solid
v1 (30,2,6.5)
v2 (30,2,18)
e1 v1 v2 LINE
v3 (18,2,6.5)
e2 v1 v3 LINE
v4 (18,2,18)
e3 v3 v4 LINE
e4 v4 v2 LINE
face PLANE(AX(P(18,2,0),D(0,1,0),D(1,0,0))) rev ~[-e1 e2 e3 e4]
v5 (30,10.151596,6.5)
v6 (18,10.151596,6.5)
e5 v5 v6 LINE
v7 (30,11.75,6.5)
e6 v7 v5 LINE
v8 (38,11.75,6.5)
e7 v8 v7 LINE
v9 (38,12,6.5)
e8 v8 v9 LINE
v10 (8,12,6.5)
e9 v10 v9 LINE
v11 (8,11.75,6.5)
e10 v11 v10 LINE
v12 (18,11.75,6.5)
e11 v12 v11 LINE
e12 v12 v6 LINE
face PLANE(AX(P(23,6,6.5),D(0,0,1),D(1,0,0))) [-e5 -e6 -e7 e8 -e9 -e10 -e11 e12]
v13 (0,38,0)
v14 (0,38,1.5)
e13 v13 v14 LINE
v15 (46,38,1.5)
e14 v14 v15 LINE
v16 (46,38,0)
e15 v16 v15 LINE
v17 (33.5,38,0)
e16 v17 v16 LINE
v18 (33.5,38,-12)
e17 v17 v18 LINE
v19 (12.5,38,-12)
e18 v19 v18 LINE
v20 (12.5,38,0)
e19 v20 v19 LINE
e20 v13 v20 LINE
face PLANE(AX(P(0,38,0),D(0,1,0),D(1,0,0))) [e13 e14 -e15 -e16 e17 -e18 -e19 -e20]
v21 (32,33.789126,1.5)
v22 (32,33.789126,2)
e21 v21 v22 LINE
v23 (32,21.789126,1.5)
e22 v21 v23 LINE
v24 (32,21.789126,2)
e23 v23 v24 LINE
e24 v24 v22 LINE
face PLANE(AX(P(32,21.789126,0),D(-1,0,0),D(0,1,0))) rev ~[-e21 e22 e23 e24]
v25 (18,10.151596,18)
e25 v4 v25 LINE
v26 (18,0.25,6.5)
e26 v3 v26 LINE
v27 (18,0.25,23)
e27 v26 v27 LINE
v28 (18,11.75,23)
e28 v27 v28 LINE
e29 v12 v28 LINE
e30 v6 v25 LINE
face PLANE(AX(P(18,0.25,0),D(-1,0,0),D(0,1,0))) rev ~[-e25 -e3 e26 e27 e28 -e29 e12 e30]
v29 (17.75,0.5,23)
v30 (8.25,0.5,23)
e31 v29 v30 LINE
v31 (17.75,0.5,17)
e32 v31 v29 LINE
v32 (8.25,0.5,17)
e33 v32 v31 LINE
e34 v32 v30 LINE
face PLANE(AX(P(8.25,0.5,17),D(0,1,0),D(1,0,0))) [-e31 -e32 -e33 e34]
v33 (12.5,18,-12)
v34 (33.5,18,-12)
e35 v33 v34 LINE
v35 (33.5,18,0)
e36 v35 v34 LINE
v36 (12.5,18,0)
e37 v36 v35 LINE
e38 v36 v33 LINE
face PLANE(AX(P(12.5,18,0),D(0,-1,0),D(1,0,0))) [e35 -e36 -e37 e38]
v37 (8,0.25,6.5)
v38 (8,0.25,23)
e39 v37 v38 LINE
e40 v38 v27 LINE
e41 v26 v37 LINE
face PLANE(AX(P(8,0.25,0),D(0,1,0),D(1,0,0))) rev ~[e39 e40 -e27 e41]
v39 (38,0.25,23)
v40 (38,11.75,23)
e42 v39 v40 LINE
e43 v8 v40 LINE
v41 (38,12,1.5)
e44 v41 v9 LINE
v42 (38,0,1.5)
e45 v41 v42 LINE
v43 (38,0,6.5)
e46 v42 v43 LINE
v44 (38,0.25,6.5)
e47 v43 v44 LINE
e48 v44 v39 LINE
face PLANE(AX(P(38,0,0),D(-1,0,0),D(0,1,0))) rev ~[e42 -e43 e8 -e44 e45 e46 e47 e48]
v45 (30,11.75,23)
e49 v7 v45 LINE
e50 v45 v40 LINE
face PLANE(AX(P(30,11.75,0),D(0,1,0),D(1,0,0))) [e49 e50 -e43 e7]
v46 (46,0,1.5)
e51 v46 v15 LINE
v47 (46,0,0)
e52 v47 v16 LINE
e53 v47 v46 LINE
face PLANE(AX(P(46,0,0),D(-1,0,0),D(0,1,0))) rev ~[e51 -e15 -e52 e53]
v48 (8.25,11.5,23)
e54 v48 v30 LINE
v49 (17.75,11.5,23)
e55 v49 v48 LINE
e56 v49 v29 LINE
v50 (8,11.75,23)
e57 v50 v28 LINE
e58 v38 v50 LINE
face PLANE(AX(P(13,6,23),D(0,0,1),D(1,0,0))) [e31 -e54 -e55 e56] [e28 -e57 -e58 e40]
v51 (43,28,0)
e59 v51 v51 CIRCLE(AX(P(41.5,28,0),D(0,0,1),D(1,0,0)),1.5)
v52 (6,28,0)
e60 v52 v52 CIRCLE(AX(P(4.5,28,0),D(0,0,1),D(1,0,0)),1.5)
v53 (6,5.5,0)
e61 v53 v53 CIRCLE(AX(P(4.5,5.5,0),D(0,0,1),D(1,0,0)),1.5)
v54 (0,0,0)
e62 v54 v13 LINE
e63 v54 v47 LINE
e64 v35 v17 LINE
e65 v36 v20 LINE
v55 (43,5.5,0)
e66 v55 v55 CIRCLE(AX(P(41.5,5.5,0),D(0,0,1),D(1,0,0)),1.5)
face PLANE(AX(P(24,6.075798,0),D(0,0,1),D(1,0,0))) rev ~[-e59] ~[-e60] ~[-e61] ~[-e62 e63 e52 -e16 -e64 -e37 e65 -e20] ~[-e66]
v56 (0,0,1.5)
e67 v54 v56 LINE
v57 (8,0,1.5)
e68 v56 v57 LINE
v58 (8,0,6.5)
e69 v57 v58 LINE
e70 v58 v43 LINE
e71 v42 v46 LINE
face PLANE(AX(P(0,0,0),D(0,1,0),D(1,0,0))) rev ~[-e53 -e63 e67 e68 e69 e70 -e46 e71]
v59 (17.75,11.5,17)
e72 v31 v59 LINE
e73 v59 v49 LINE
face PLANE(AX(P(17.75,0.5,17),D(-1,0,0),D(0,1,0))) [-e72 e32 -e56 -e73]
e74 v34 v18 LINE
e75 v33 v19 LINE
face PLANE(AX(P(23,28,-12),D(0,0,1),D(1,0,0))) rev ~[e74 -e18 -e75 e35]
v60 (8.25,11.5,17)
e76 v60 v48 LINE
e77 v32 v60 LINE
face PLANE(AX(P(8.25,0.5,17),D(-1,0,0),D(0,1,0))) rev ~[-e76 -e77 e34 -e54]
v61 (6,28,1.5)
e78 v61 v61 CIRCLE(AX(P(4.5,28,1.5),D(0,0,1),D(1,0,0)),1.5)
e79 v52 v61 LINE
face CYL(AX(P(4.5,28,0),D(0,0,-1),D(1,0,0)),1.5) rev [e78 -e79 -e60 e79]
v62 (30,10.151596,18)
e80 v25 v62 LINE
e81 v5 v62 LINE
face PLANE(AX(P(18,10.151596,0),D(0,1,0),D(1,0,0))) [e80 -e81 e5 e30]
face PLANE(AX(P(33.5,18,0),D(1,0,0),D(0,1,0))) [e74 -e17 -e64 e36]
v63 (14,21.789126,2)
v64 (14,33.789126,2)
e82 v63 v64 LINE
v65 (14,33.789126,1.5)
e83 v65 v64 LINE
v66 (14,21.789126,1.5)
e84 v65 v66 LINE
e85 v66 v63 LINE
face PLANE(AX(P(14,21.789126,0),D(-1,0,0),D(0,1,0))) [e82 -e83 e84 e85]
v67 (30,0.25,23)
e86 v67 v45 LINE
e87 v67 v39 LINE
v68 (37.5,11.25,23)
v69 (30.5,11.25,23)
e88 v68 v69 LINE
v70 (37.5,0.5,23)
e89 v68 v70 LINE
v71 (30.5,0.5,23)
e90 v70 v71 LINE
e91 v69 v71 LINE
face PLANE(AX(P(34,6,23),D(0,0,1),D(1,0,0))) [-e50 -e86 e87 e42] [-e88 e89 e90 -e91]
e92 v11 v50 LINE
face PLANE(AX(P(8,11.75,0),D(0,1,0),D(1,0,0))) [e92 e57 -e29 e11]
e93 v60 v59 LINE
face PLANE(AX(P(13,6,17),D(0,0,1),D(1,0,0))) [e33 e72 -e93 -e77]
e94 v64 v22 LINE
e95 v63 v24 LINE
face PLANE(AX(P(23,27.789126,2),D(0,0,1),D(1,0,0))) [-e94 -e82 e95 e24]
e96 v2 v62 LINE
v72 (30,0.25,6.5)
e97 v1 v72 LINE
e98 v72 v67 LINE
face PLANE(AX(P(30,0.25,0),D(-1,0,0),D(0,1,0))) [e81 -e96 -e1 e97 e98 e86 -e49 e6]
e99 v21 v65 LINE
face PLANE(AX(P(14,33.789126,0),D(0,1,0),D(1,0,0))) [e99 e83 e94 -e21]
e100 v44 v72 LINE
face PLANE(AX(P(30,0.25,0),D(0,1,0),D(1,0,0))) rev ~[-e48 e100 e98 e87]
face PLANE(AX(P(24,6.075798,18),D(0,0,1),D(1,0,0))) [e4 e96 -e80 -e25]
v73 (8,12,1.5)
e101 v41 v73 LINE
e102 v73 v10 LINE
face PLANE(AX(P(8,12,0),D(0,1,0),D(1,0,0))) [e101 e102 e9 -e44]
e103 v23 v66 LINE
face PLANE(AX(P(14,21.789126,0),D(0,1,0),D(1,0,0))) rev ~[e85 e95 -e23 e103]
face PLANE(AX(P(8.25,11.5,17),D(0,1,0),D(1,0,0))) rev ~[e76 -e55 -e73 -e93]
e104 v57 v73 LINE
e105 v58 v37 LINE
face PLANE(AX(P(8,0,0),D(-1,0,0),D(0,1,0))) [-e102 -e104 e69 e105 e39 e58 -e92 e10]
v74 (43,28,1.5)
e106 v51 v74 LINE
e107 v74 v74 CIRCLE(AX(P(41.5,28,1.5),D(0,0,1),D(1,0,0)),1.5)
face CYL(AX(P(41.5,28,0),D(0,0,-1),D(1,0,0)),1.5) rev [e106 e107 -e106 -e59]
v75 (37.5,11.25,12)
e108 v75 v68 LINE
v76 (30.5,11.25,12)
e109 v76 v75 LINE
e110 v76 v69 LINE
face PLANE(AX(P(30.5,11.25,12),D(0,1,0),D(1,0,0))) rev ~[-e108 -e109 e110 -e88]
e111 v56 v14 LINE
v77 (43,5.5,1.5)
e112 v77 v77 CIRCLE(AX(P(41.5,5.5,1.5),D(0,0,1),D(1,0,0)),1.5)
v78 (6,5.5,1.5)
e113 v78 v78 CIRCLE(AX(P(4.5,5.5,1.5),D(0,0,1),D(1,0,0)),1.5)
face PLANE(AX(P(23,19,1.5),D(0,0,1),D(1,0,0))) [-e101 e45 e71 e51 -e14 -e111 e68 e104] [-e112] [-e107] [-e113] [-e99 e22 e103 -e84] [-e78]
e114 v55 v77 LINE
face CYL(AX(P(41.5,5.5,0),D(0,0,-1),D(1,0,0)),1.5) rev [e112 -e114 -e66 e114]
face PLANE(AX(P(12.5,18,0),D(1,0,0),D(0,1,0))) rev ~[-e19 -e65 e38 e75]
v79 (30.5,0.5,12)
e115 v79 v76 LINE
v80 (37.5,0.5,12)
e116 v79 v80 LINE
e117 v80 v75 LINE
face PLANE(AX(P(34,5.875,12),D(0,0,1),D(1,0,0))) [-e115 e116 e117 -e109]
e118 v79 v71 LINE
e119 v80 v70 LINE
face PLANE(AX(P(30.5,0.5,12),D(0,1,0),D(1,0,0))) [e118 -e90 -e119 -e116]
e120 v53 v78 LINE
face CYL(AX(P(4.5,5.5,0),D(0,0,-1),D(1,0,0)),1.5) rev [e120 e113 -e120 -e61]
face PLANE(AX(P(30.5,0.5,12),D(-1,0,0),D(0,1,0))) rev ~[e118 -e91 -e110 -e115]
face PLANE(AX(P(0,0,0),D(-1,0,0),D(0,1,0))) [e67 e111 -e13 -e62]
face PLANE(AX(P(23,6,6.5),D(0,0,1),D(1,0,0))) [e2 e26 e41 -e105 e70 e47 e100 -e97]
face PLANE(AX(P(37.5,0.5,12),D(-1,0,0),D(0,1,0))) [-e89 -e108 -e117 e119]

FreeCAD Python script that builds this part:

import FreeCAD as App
import Part
import Sketcher

V = App.Vector

doc = App.newDocument("Part")
params = doc.addObject("Spreadsheet::Sheet", "Params")
for row, (alias, value) in enumerate([
    ("sketch1_diameter", "3 mm"),
    ("sketch1_width", "46 mm"),
    ("sketch1_height", "38 mm"),
    ("pad1_length", "1.5 mm"),
    ("sketch2_width", "21 mm"),
    ("sketch2_height", "20 mm"),
    ("pad2_length", "12 mm"),
    ("sketch3_width", "18 mm"),
    ("sketch3_height", "12 mm"),
    ("pad3_length", "2 mm"),
    ("sketch4_width", "30 mm"),
    ("sketch4_height", "12 mm"),
    ("pad4_length", "6.5 mm"),
    ("sketch5_width", "10 mm"),
    ("sketch5_height", "11.5 mm"),
    ("pad5_length", "23 mm"),
    ("sketch6_width", "8 mm"),
    ("sketch6_height", "11.5 mm"),
    ("pad6_length", "23 mm"),
    ("sketch7_width", "12 mm"),
    ("pad7_length", "18 mm"),
    ("sketch8_height", "11 mm"),
    ("sketch8_width", "9.5 mm"),
    ("pocket1_length", "16.5 mm"),
    ("sketch9_width", "7 mm"),
    ("sketch9_height", "10.75 mm"),
    ("pocket2_length", "16.5 mm"),
], start=1):
    params.set(f"A{row}", alias)
    params.set(f"B{row}", "=" + value)
    params.setAlias(f"B{row}", alias)

body = doc.addObject("PartDesign::Body", "Body")

# Sketch on XY plane
sketch1 = body.newObject("Sketcher::SketchObject", "Sketch")
sketch1.AttachmentSupport = (doc.getObject("XY_Plane"), [""])
sketch1.MapMode = "FlatFace"
sketch1.addGeometry(Part.LineSegment(V(0, 38, 0), V(0, 0, 0)), False)
sketch1.addGeometry(Part.LineSegment(V(0, 0, 0), V(46, 0, 0)), False)
sketch1.addGeometry(Part.LineSegment(V(46, 0, 0), V(46, 38, 0)), False)
sketch1.addGeometry(Part.LineSegment(V(46, 38, 0), V(0, 38, 0)), False)
sketch1.addGeometry(Part.Circle(V(4.5, 5.5, 0), V(0, 0, 1), 1.5), False)
sketch1.addGeometry(Part.Circle(V(41.5, 5.5, 0), V(0, 0, 1), 1.5), False)
sketch1.addGeometry(Part.Circle(V(4.5, 28, 0), V(0, 0, 1), 1.5), False)
sketch1.addGeometry(Part.Circle(V(41.5, 28, 0), V(0, 0, 1), 1.5), False)
sketch1.addConstraint(Sketcher.Constraint("Coincident", 0, 2, 1, 1))
sketch1.addConstraint(Sketcher.Constraint("Coincident", 1, 2, 2, 1))
sketch1.addConstraint(Sketcher.Constraint("Coincident", 2, 2, 3, 1))
sketch1.addConstraint(Sketcher.Constraint("Coincident", 3, 2, 0, 1))
sketch1.addConstraint(Sketcher.Constraint("Vertical", 0))
sketch1.addConstraint(Sketcher.Constraint("Horizontal", 1))
sketch1.addConstraint(Sketcher.Constraint("Vertical", 2))
sketch1.addConstraint(Sketcher.Constraint("Horizontal", 3))
sketch1.addConstraint(Sketcher.Constraint("Coincident", 0, 2, -1, 1))
sketch1.addConstraint(Sketcher.Constraint("Equal", 4, 5))
sketch1.addConstraint(Sketcher.Constraint("Equal", 5, 6))
sketch1.addConstraint(Sketcher.Constraint("Equal", 6, 7))
sketch1.addConstraint(Sketcher.Constraint("Horizontal", 4, 3, 5, 3))
sketch1.addConstraint(Sketcher.Constraint("Horizontal", 6, 3, 7, 3))
sketch1.addConstraint(Sketcher.Constraint("Vertical", 4, 3, 6, 3))
sketch1.addConstraint(Sketcher.Constraint("Vertical", 5, 3, 7, 3))
sketch1.addConstraint(Sketcher.Constraint("Diameter", 4, 3.0))
sketch1.addConstraint(Sketcher.Constraint("DistanceX", 1, 1, 1, 2, 46.0))
sketch1.addConstraint(Sketcher.Constraint("DistanceY", 0, 2, 0, 1, 38.0))
sketch1.addConstraint(Sketcher.Constraint("DistanceY", -1, 1, 6, 3, 28.0))
sketch1.addConstraint(Sketcher.Constraint("DistanceX", 4, 3, 5, 3, 37.0))
sketch1.addConstraint(Sketcher.Constraint("DistanceX", -1, 1, 4, 3, 4.5))
sketch1.addConstraint(Sketcher.Constraint("DistanceY", -1, 1, 4, 3, 5.5))
sketch1.setExpression("Constraints[16]", "Params.sketch1_diameter")
sketch1.setExpression("Constraints[17]", "Params.sketch1_width")
sketch1.setExpression("Constraints[18]", "Params.sketch1_height")
pad1 = body.newObject("PartDesign::Pad", "Pad")
pad1.Profile = sketch1
pad1.setExpression("Length", "Params.pad1_length")

# Sketch on XY plane
sketch2 = body.newObject("Sketcher::SketchObject", "Sketch001")
sketch2.AttachmentSupport = (doc.getObject("XY_Plane"), [""])
sketch2.MapMode = "FlatFace"
sketch2.addGeometry(Part.LineSegment(V(12, 38, 0), V(12, 18, 0)), False)
sketch2.addGeometry(Part.LineSegment(V(12, 18, 0), V(34, 18, 0)), False)
sketch2.addGeometry(Part.LineSegment(V(34, 18, 0), V(34, 38, 0)), False)
sketch2.addGeometry(Part.LineSegment(V(34, 38, 0), V(12, 38, 0)), False)
sketch2.addConstraint(Sketcher.Constraint("Coincident", 0, 2, 1, 1))
sketch2.addConstraint(Sketcher.Constraint("Coincident", 1, 2, 2, 1))
sketch2.addConstraint(Sketcher.Constraint("Coincident", 2, 2, 3, 1))
sketch2.addConstraint(Sketcher.Constraint("Coincident", 3, 2, 0, 1))
sketch2.addConstraint(Sketcher.Constraint("Vertical", 0))
sketch2.addConstraint(Sketcher.Constraint("Horizontal", 1))
sketch2.addConstraint(Sketcher.Constraint("Vertical", 2))
sketch2.addConstraint(Sketcher.Constraint("Horizontal", 3))
sketch2.addConstraint(Sketcher.Constraint("DistanceX", 1, 1, 1, 2, 21.0))
sketch2.addConstraint(Sketcher.Constraint("DistanceY", 0, 2, 0, 1, 20.0))
sketch2.addConstraint(Sketcher.Constraint("DistanceY", -1, 1, 0, 2, 18.0))
sketch2.addConstraint(Sketcher.Constraint("DistanceX", -1, 1, 0, 2, 12.5))
sketch2.setExpression("Constraints[8]", "Params.sketch2_width")
sketch2.setExpression("Constraints[9]", "Params.sketch2_height")
pad2 = body.newObject("PartDesign::Pad", "Pad001")
pad2.Profile = sketch2
pad2.setExpression("Length", "Params.pad2_length")
pad2.Reversed = True

# Sketch on XY plane
sketch3 = body.newObject("Sketcher::SketchObject", "Sketch002")
sketch3.AttachmentSupport = (doc.getObject("XY_Plane"), [""])
sketch3.MapMode = "FlatFace"
sketch3.addGeometry(Part.LineSegment(V(14, 34, 0), V(14, 22, 0)), False)
sketch3.addGeometry(Part.LineSegment(V(14, 22, 0), V(32, 22, 0)), False)
sketch3.addGeometry(Part.LineSegment(V(32, 22, 0), V(32, 34, 0)), False)
sketch3.addGeometry(Part.LineSegment(V(32, 34, 0), V(14, 34, 0)), False)
sketch3.addConstraint(Sketcher.Constraint("Coincident", 0, 2, 1, 1))
sketch3.addConstraint(Sketcher.Constraint("Coincident", 1, 2, 2, 1))
sketch3.addConstraint(Sketcher.Constraint("Coincident", 2, 2, 3, 1))
sketch3.addConstraint(Sketcher.Constraint("Coincident", 3, 2, 0, 1))
sketch3.addConstraint(Sketcher.Constraint("Vertical", 0))
sketch3.addConstraint(Sketcher.Constraint("Horizontal", 1))
sketch3.addConstraint(Sketcher.Constraint("Vertical", 2))
sketch3.addConstraint(Sketcher.Constraint("Horizontal", 3))
sketch3.addConstraint(Sketcher.Constraint("DistanceX", 1, 1, 1, 2, 18.0))
sketch3.addConstraint(Sketcher.Constraint("DistanceY", 0, 2, 0, 1, 12.0))
sketch3.addConstraint(Sketcher.Constraint("DistanceX", -1, 1, 0, 2, 14.0))
sketch3.addConstraint(Sketcher.Constraint("DistanceY", -1, 1, 0, 2, 21.789126))
sketch3.setExpression("Constraints[8]", "Params.sketch3_width")
sketch3.setExpression("Constraints[9]", "Params.sketch3_height")
pad3 = body.newObject("PartDesign::Pad", "Pad002")
pad3.Profile = sketch3
pad3.setExpression("Length", "Params.pad3_length")

# Sketch on XY plane
sketch4 = body.newObject("Sketcher::SketchObject", "Sketch003")
sketch4.AttachmentSupport = (doc.getObject("XY_Plane"), [""])
sketch4.MapMode = "FlatFace"
sketch4.addGeometry(Part.LineSegment(V(8, 12, 0), V(8, 0, 0)), False)
sketch4.addGeometry(Part.LineSegment(V(8, 0, 0), V(38, 0, 0)), False)
sketch4.addGeometry(Part.LineSegment(V(38, 0, 0), V(38, 12, 0)), False)
sketch4.addGeometry(Part.LineSegment(V(38, 12, 0), V(8, 12, 0)), False)
sketch4.addConstraint(Sketcher.Constraint("Coincident", 0, 2, 1, 1))
sketch4.addConstraint(Sketcher.Constraint("Coincident", 1, 2, 2, 1))
sketch4.addConstraint(Sketcher.Constraint("Coincident", 2, 2, 3, 1))
sketch4.addConstraint(Sketcher.Constraint("Coincident", 3, 2, 0, 1))
sketch4.addConstraint(Sketcher.Constraint("Vertical", 0))
sketch4.addConstraint(Sketcher.Constraint("Horizontal", 1))
sketch4.addConstraint(Sketcher.Constraint("Vertical", 2))
sketch4.addConstraint(Sketcher.Constraint("Horizontal", 3))
sketch4.addConstraint(Sketcher.Constraint("PointOnObject", 0, 2, -1))
sketch4.addConstraint(Sketcher.Constraint("DistanceX", 1, 1, 1, 2, 30.0))
sketch4.addConstraint(Sketcher.Constraint("DistanceY", 0, 2, 0, 1, 12.0))
sketch4.addConstraint(Sketcher.Constraint("DistanceX", -1, 1, 0, 2, 8.0))
sketch4.setExpression("Constraints[9]", "Params.sketch4_width")
sketch4.setExpression("Constraints[10]", "Params.sketch4_height")
pad4 = body.newObject("PartDesign::Pad", "Pad003")
pad4.Profile = sketch4
pad4.setExpression("Length", "Params.pad4_length")

# Sketch on XY plane
sketch5 = body.newObject("Sketcher::SketchObject", "Sketch004")
sketch5.AttachmentSupport = (doc.getObject("XY_Plane"), [""])
sketch5.MapMode = "FlatFace"
sketch5.addGeometry(Part.LineSegment(V(8, 12, 0), V(8, 0, 0)), False)
sketch5.addGeometry(Part.LineSegment(V(8, 0, 0), V(18, 0, 0)), False)
sketch5.addGeometry(Part.LineSegment(V(18, 0, 0), V(18, 12, 0)), False)
sketch5.addGeometry(Part.LineSegment(V(18, 12, 0), V(8, 12, 0)), False)
sketch5.addConstraint(Sketcher.Constraint("Coincident", 0, 2, 1, 1))
sketch5.addConstraint(Sketcher.Constraint("Coincident", 1, 2, 2, 1))
sketch5.addConstraint(Sketcher.Constraint("Coincident", 2, 2, 3, 1))
sketch5.addConstraint(Sketcher.Constraint("Coincident", 3, 2, 0, 1))
sketch5.addConstraint(Sketcher.Constraint("Vertical", 0))
sketch5.addConstraint(Sketcher.Constraint("Horizontal", 1))
sketch5.addConstraint(Sketcher.Constraint("Vertical", 2))
sketch5.addConstraint(Sketcher.Constraint("Horizontal", 3))
sketch5.addConstraint(Sketcher.Constraint("DistanceX", 1, 1, 1, 2, 10.0))
sketch5.addConstraint(Sketcher.Constraint("DistanceY", 0, 2, 0, 1, 11.5))
sketch5.addConstraint(Sketcher.Constraint("DistanceX", -1, 1, 0, 2, 8.0))
sketch5.addConstraint(Sketcher.Constraint("DistanceY", -1, 1, 0, 2, 0.25))
sketch5.setExpression("Constraints[8]", "Params.sketch5_width")
sketch5.setExpression("Constraints[9]", "Params.sketch5_height")
pad5 = body.newObject("PartDesign::Pad", "Pad004")
pad5.Profile = sketch5
pad5.setExpression("Length", "Params.pad5_length")

# Sketch on XY plane
sketch6 = body.newObject("Sketcher::SketchObject", "Sketch005")
sketch6.AttachmentSupport = (doc.getObject("XY_Plane"), [""])
sketch6.MapMode = "FlatFace"
sketch6.addGeometry(Part.LineSegment(V(30, 12, 0), V(30, 0, 0)), False)
sketch6.addGeometry(Part.LineSegment(V(30, 0, 0), V(38, 0, 0)), False)
sketch6.addGeometry(Part.LineSegment(V(38, 0, 0), V(38, 12, 0)), False)
sketch6.addGeometry(Part.LineSegment(V(38, 12, 0), V(30, 12, 0)), False)
sketch6.addConstraint(Sketcher.Constraint("Coincident", 0, 2, 1, 1))
sketch6.addConstraint(Sketcher.Constraint("Coincident", 1, 2, 2, 1))
sketch6.addConstraint(Sketcher.Constraint("Coincident", 2, 2, 3, 1))
sketch6.addConstraint(Sketcher.Constraint("Coincident", 3, 2, 0, 1))
sketch6.addConstraint(Sketcher.Constraint("Vertical", 0))
sketch6.addConstraint(Sketcher.Constraint("Horizontal", 1))
sketch6.addConstraint(Sketcher.Constraint("Vertical", 2))
sketch6.addConstraint(Sketcher.Constraint("Horizontal", 3))
sketch6.addConstraint(Sketcher.Constraint("DistanceX", 1, 1, 1, 2, 8.0))
sketch6.addConstraint(Sketcher.Constraint("DistanceY", 0, 2, 0, 1, 11.5))
sketch6.addConstraint(Sketcher.Constraint("DistanceX", -1, 1, 0, 2, 30.0))
sketch6.addConstraint(Sketcher.Constraint("DistanceY", -1, 1, 0, 2, 0.25))
sketch6.setExpression("Constraints[8]", "Params.sketch6_width")
sketch6.setExpression("Constraints[9]", "Params.sketch6_height")
pad6 = body.newObject("PartDesign::Pad", "Pad005")
pad6.Profile = sketch6
pad6.setExpression("Length", "Params.pad6_length")

# Sketch on XY plane
sketch7 = body.newObject("Sketcher::SketchObject", "Sketch006")
sketch7.AttachmentSupport = (doc.getObject("XY_Plane"), [""])
sketch7.MapMode = "FlatFace"
sketch7.addGeometry(Part.LineSegment(V(18, 10, 0), V(18, 2, 0)), False)
sketch7.addGeometry(Part.LineSegment(V(18, 2, 0), V(30, 2, 0)), False)
sketch7.addGeometry(Part.LineSegment(V(30, 2, 0), V(30, 10, 0)), False)
sketch7.addGeometry(Part.LineSegment(V(30, 10, 0), V(18, 10, 0)), False)
sketch7.addConstraint(Sketcher.Constraint("Coincident", 0, 2, 1, 1))
sketch7.addConstraint(Sketcher.Constraint("Coincident", 1, 2, 2, 1))
sketch7.addConstraint(Sketcher.Constraint("Coincident", 2, 2, 3, 1))
sketch7.addConstraint(Sketcher.Constraint("Coincident", 3, 2, 0, 1))
sketch7.addConstraint(Sketcher.Constraint("Vertical", 0))
sketch7.addConstraint(Sketcher.Constraint("Horizontal", 1))
sketch7.addConstraint(Sketcher.Constraint("Vertical", 2))
sketch7.addConstraint(Sketcher.Constraint("Horizontal", 3))
sketch7.addConstraint(Sketcher.Constraint("DistanceX", 1, 1, 1, 2, 12.0))
sketch7.addConstraint(Sketcher.Constraint("DistanceX", -1, 1, 0, 2, 18.0))
sketch7.addConstraint(Sketcher.Constraint("DistanceY", -1, 1, 0, 2, 2.0))
sketch7.addConstraint(Sketcher.Constraint("DistanceY", 0, 2, 0, 1, 8.151596))
sketch7.setExpression("Constraints[8]", "Params.sketch7_width")
pad7 = body.newObject("PartDesign::Pad", "Pad006")
pad7.Profile = sketch7
pad7.setExpression("Length", "Params.pad7_length")

# Sketch on XY plane
sketch8 = body.newObject("Sketcher::SketchObject", "Sketch007")
sketch8.AttachmentSupport = (doc.getObject("XY_Plane"), [""])
sketch8.MapMode = "FlatFace"
sketch8.AttachmentOffset = App.Placement(V(0, 0, 17), App.Rotation())
sketch8.addGeometry(Part.LineSegment(V(8, 12, 0), V(8, 0, 0)), False)
sketch8.addGeometry(Part.LineSegment(V(8, 0, 0), V(18, 0, 0)), False)
sketch8.addGeometry(Part.LineSegment(V(18, 0, 0), V(18, 12, 0)), False)
sketch8.addGeometry(Part.LineSegment(V(18, 12, 0), V(8, 12, 0)), False)
sketch8.addConstraint(Sketcher.Constraint("Coincident", 0, 2, 1, 1))
sketch8.addConstraint(Sketcher.Constraint("Coincident", 1, 2, 2, 1))
sketch8.addConstraint(Sketcher.Constraint("Coincident", 2, 2, 3, 1))
sketch8.addConstraint(Sketcher.Constraint("Coincident", 3, 2, 0, 1))
sketch8.addConstraint(Sketcher.Constraint("Vertical", 0))
sketch8.addConstraint(Sketcher.Constraint("Horizontal", 1))
sketch8.addConstraint(Sketcher.Constraint("Vertical", 2))
sketch8.addConstraint(Sketcher.Constraint("Horizontal", 3))
sketch8.addConstraint(Sketcher.Constraint("DistanceY", 0, 2, 0, 1, 11.0))
sketch8.addConstraint(Sketcher.Constraint("DistanceX", 1, 1, 1, 2, 9.5))
sketch8.addConstraint(Sketcher.Constraint("DistanceY", -1, 1, 0, 2, 0.5))
sketch8.addConstraint(Sketcher.Constraint("DistanceX", -1, 1, 0, 2, 8.25))
sketch8.setExpression("Constraints[8]", "Params.sketch8_height")
sketch8.setExpression("Constraints[9]", "Params.sketch8_width")
pocket1 = body.newObject("PartDesign::Pocket", "Pocket")
pocket1.Profile = sketch8
pocket1.setExpression("Length", "Params.pocket1_length")
pocket1.Reversed = True

# Sketch on XY plane
sketch9 = body.newObject("Sketcher::SketchObject", "Sketch008")
sketch9.AttachmentSupport = (doc.getObject("XY_Plane"), [""])
sketch9.MapMode = "FlatFace"
sketch9.AttachmentOffset = App.Placement(V(0, 0, 12), App.Rotation())
sketch9.addGeometry(Part.LineSegment(V(30, 11, 0), V(30, 0, 0)), False)
sketch9.addGeometry(Part.LineSegment(V(30, 0, 0), V(38, 0, 0)), False)
sketch9.addGeometry(Part.LineSegment(V(38, 0, 0), V(38, 11, 0)), False)
sketch9.addGeometry(Part.LineSegment(V(38, 11, 0), V(30, 11, 0)), False)
sketch9.addConstraint(Sketcher.Constraint("Coincident", 0, 2, 1, 1))
sketch9.addConstraint(Sketcher.Constraint("Coincident", 1, 2, 2, 1))
sketch9.addConstraint(Sketcher.Constraint("Coincident", 2, 2, 3, 1))
sketch9.addConstraint(Sketcher.Constraint("Coincident", 3, 2, 0, 1))
sketch9.addConstraint(Sketcher.Constraint("Vertical", 0))
sketch9.addConstraint(Sketcher.Constraint("Horizontal", 1))
sketch9.addConstraint(Sketcher.Constraint("Vertical", 2))
sketch9.addConstraint(Sketcher.Constraint("Horizontal", 3))
sketch9.addConstraint(Sketcher.Constraint("DistanceX", 1, 1, 1, 2, 7.0))
sketch9.addConstraint(Sketcher.Constraint("DistanceY", 0, 2, 0, 1, 10.75))
sketch9.addConstraint(Sketcher.Constraint("DistanceX", -1, 1, 0, 2, 30.5))
sketch9.addConstraint(Sketcher.Constraint("DistanceY", -1, 1, 0, 2, 0.5))
sketch9.setExpression("Constraints[8]", "Params.sketch9_width")
sketch9.setExpression("Constraints[9]", "Params.sketch9_height")
pocket2 = body.newObject("PartDesign::Pocket", "Pocket001")
pocket2.Profile = sketch9
pocket2.setExpression("Length", "Params.pocket2_length")
pocket2.Reversed = True

doc.recompute()
